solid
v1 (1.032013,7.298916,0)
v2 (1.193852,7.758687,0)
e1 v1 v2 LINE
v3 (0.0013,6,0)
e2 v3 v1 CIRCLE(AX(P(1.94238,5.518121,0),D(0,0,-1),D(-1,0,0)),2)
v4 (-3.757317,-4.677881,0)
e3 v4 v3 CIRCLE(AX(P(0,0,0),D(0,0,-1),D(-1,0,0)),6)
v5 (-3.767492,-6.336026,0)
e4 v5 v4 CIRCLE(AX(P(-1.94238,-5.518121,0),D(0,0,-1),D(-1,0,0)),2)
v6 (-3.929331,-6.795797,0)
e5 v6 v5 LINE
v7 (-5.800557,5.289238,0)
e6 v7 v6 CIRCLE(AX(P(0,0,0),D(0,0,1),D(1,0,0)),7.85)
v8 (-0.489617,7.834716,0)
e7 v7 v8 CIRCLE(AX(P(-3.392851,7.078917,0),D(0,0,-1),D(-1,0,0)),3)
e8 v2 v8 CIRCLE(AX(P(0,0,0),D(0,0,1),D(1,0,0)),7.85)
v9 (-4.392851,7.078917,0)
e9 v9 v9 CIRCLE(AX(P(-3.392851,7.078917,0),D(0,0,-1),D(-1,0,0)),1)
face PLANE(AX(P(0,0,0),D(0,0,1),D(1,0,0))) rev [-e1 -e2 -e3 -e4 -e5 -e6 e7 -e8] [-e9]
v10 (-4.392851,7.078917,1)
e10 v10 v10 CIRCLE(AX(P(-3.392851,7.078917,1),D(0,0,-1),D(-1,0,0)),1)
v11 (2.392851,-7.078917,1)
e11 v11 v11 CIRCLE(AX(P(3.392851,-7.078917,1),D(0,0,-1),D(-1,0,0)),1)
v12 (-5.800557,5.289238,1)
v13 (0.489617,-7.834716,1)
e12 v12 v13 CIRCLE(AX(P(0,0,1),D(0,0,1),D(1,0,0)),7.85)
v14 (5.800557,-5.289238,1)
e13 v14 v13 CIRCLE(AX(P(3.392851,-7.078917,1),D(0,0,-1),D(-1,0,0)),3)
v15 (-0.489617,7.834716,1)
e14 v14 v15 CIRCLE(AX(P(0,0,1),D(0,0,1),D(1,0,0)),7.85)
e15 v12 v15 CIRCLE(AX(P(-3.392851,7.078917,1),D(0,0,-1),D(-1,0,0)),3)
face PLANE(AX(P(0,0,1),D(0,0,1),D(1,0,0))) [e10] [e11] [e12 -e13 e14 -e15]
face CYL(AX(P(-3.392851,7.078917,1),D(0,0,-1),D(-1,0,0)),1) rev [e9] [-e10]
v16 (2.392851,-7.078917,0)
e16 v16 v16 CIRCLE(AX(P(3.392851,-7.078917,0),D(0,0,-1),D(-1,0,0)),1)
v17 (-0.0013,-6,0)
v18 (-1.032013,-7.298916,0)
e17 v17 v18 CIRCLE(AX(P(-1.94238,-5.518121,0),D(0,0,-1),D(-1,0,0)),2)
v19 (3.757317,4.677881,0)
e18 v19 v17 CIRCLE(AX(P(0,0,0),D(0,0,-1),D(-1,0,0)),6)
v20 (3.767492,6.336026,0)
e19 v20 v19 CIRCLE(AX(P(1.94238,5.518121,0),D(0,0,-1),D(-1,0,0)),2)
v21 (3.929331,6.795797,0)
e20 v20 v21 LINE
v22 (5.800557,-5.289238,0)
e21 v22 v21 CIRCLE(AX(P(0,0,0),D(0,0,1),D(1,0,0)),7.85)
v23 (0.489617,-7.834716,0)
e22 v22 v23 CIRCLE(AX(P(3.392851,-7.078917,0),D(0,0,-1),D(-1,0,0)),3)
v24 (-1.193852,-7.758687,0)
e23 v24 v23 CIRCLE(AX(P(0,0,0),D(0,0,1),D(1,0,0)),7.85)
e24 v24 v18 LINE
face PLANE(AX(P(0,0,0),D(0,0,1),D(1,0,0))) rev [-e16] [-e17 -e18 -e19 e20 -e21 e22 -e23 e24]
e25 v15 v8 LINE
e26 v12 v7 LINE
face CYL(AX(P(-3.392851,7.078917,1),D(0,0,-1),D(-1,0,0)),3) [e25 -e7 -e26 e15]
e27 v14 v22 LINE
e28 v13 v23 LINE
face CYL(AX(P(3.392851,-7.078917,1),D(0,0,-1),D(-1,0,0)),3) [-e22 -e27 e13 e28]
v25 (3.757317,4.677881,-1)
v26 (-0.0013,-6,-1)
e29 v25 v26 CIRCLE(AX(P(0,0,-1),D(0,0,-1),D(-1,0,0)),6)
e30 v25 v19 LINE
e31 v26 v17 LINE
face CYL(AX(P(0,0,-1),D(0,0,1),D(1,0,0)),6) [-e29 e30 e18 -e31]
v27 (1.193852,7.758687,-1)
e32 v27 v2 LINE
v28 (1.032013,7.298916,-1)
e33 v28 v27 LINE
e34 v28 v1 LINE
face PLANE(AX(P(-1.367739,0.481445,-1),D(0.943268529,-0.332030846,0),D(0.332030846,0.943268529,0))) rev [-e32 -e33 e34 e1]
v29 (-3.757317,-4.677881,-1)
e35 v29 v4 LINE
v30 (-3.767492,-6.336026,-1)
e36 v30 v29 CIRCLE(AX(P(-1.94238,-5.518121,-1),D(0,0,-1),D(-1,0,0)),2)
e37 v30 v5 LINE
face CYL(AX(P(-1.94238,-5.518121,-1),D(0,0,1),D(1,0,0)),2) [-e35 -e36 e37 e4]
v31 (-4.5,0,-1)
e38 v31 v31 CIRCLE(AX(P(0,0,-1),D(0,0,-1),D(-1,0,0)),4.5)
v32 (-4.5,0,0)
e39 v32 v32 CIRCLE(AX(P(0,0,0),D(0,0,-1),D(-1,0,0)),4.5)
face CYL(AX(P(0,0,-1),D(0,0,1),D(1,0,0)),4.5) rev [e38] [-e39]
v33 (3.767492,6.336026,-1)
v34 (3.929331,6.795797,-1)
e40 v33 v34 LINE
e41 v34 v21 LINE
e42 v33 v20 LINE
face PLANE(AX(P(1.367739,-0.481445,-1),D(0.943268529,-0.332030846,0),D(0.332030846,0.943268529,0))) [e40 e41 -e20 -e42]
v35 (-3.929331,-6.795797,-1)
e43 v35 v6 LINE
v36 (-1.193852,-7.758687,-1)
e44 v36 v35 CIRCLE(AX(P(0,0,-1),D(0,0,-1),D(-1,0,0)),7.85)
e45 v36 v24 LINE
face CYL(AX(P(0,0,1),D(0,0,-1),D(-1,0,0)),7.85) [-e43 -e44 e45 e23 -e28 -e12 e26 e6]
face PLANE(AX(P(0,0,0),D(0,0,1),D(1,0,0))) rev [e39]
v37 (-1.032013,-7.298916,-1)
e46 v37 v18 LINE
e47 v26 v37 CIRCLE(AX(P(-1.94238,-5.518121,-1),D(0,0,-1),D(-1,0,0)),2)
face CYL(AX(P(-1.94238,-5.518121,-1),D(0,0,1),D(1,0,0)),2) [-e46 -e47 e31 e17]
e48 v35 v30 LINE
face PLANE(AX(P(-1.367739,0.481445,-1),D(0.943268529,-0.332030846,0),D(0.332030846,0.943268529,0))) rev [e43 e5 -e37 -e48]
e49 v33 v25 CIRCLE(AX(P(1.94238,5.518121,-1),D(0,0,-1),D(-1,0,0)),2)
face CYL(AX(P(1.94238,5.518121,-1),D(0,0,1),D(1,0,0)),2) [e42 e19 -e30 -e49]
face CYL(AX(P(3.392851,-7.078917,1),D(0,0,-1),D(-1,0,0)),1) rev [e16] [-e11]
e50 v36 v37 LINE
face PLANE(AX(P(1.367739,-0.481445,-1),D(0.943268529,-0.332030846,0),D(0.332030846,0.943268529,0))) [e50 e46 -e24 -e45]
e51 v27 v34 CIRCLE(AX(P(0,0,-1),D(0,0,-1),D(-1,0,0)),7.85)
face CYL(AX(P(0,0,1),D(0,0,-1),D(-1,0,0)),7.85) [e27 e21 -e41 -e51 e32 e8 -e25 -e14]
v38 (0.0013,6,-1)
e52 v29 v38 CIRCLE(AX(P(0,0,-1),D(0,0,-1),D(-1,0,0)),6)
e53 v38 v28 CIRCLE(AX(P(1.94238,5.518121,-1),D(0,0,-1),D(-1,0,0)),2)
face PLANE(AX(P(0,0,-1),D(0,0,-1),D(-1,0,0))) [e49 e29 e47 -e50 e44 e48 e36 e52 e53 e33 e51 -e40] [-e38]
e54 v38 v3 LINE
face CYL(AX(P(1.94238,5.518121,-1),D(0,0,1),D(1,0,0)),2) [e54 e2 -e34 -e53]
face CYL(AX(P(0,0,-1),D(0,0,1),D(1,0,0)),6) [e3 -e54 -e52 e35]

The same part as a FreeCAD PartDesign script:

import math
import FreeCAD as App
import Part
import Sketcher

V = App.Vector

doc = App.newDocument("Part")
params = doc.addObject("Spreadsheet::Sheet", "Params")
for row, (alias, value) in enumerate([
    ("sketch1_diameter", "15.7 mm"),
    ("pad1_length", "1 mm"),
    ("sketch2_diameter", "9 mm"),
    ("sketch2_radius", "2 mm"),
    ("sketch2_radius2", "6 mm"),
    ("sketch2_radius3", "7.85 mm"),
    ("pad2_length", "1 mm"),
    ("sketch3_radius", "3 mm"),
    ("sketch3_radius2", "1 mm"),
    ("sketch3_radius3", "7.85 mm"),
    ("pad3_length", "1 mm"),
    ("sketch4_diameter", "2 mm"),
    ("pocket1_length", "2 mm"),
    ("sketch5_diameter", "2 mm"),
    ("pocket2_length", "3 mm"),
], start=1):
    params.set(f"A{row}", alias)
    params.set(f"B{row}", "=" + value)
    params.setAlias(f"B{row}", alias)

body = doc.addObject("PartDesign::Body", "Body")

sketch1 = body.newObject("Sketcher::SketchObject", "Sketch")
sketch1.AttachmentSupport = (doc.getObject("XY_Plane"), [""])
sketch1.MapMode = "FlatFace"
sketch1.addGeometry(Part.Circle(V(0, 0, 0), V(0, 0, 1), 8), False)
sketch1.addConstraint(Sketcher.Constraint("Coincident", 0, 3, -1, 1))
sketch1.addConstraint(Sketcher.Constraint("Diameter", 0, 15.7))
sketch1.setExpression("Constraints[1]", "Params.sketch1_diameter")
pad1 = body.newObject("PartDesign::Pad", "Pad")
pad1.Profile = sketch1
pad1.setExpression("Length", "Params.pad1_length")

sketch2 = body.newObject("Sketcher::SketchObject", "Sketch001")
sketch2.AttachmentSupport = (doc.getObject("XY_Plane"), [""])
sketch2.MapMode = "FlatFace"
sketch2.AttachmentOffset = App.Placement(V(0, 0, -1), App.Rotation())
sketch2.addGeometry(Part.ArcOfCircle(Part.Circle(V(1.94, 5.52, 0), V(0, 0, 1), 2), math.radians(117), math.radians(166)), False)
sketch2.addGeometry(Part.LineSegment(V(1.03, 7.3, 0), V(1.19, 7.76, 0)), False)
sketch2.addGeometry(Part.ArcOfCircle(Part.Circle(V(0, 0, 0), V(0, 0, 1), 7.85), math.radians(60), math.radians(81)), False)
sketch2.addGeometry(Part.LineSegment(V(3.93, 6.8, 0), V(3.77, 6.34, 0)), False)
sketch2.addGeometry(Part.ArcOfCircle(Part.Circle(V(1.94, 5.52, 0), V(0, 0, 1), 2), math.radians(-25), math.radians(24)), False)
sketch2.addGeometry(Part.ArcOfCircle(Part.Circle(V(0, 0, 0), V(0, 0, 1), 6), math.radians(-90), math.radians(51)), False)
sketch2.addGeometry(Part.ArcOfCircle(Part.Circle(V(-1.94, -5.52, 0), V(0, 0, 1), 2), math.radians(-63), math.radians(-14)), False)
sketch2.addGeometry(Part.LineSegment(V(-1.03, -7.3, 0), V(-1.19, -7.76, 0)), False)
sketch2.addGeometry(Part.ArcOfCircle(Part.Circle(V(0, 0, 0), V(0, 0, 1), 7.85), math.radians(-120), math.radians(-99)), False)
sketch2.addGeometry(Part.LineSegment(V(-3.93, -6.8, 0), V(-3.77, -6.34, 0)), False)
sketch2.addGeometry(Part.ArcOfCircle(Part.Circle(V(-1.94, -5.52, 0), V(0, 0, 1), 2), math.radians(155), math.radians(204)), False)
sketch2.addGeometry(Part.ArcOfCircle(Part.Circle(V(0, 0, 0), V(0, 0, 1), 6), math.radians(90), math.radians(231)), False)
sketch2.addGeometry(Part.Circle(V(0, 0, 0), V(0, 0, 1), 4.5), False)
sketch2.addConstraint(Sketcher.Constraint("Coincident", 0, 1, 1, 1))
sketch2.addConstraint(Sketcher.Constraint("Coincident", 1, 2, 2, 2))
sketch2.addConstraint(Sketcher.Constraint("Coincident", 2, 1, 3, 1))
sketch2.addConstraint(Sketcher.Constraint("Coincident", 3, 2, 4, 2))
sketch2.addConstraint(Sketcher.Constraint("Coincident", 4, 1, 5, 2))
sketch2.addConstraint(Sketcher.Constraint("Coincident", 5, 1, 6, 2))
sketch2.addConstraint(Sketcher.Constraint("Coincident", 6, 1, 7, 1))
sketch2.addConstraint(Sketcher.Constraint("Coincident", 7, 2, 8, 2))
sketch2.addConstraint(Sketcher.Constraint("Coincident", 8, 1, 9, 1))
sketch2.addConstraint(Sketcher.Constraint("Coincident", 9, 2, 10, 2))
sketch2.addConstraint(Sketcher.Constraint("Coincident", 10, 1, 11, 2))
sketch2.addConstraint(Sketcher.Constraint("Coincident", 11, 1, 0, 2))
sketch2.addConstraint(Sketcher.Constraint("Coincident", 2, 3, -1, 1))
sketch2.addConstraint(Sketcher.Constraint("Coincident", 5, 3, -1, 1))
sketch2.addConstraint(Sketcher.Constraint("Coincident", 8, 3, -1, 1))
sketch2.addConstraint(Sketcher.Constraint("Coincident", 11, 3, -1, 1))
sketch2.addConstraint(Sketcher.Constraint("Coincident", 12, 3, -1, 1))
sketch2.addConstraint(Sketcher.Constraint("Coincident", 4, 3, 0, 3))
sketch2.addConstraint(Sketcher.Constraint("Coincident", 10, 3, 6, 3))
sketch2.addConstraint(Sketcher.Constraint("Equal", 0, 4))
sketch2.addConstraint(Sketcher.Constraint("Equal", 4, 6))
sketch2.addConstraint(Sketcher.Constraint("Equal", 2, 8))
sketch2.addConstraint(Sketcher.Constraint("Equal", 6, 10))
sketch2.addConstraint(Sketcher.Constraint("Equal", 5, 11))
sketch2.addConstraint(Sketcher.Constraint("Symmetric", 0, 3, 6, 3, -1, 1))
sketch2.addConstraint(Sketcher.Constraint("Parallel", 1, 3))
sketch2.addConstraint(Sketcher.Constraint("Parallel", 3, 7))
sketch2.addConstraint(Sketcher.Constraint("Parallel", 7, 9))
sketch2.addConstraint(Sketcher.Constraint("Equal", 1, 3))
sketch2.addConstraint(Sketcher.Constraint("Equal", 3, 7))
sketch2.addConstraint(Sketcher.Constraint("Equal", 7, 9))
sketch2.addConstraint(Sketcher.Constraint("Diameter", 12, 9.0))
sketch2.addConstraint(Sketcher.Constraint("Radius", 0, 2.0))
sketch2.addConstraint(Sketcher.Constraint("Radius", 5, 6.0))
sketch2.addConstraint(Sketcher.Constraint("Radius", 2, 7.85))
sketch2.addConstraint(Sketcher.Constraint("DistanceX", 5, 1, -1, 1, 0.0013))
sketch2.addConstraint(Sketcher.Constraint("DistanceX", -1, 1, 0, 3, 1.94238))
sketch2.addConstraint(Sketcher.Constraint("DistanceX", -1, 1, 2, 1, 3.929331))
sketch2.addConstraint(Sketcher.Constraint("DistanceX", -1, 1, 3, 2, 3.767492))
sketch2.setExpression("Constraints[31]", "Params.sketch2_diameter")
sketch2.setExpression("Constraints[32]", "Params.sketch2_radius")
sketch2.setExpression("Constraints[33]", "Params.sketch2_radius2")
sketch2.setExpression("Constraints[34]", "Params.sketch2_radius3")
pad2 = body.newObject("PartDesign::Pad", "Pad001")
pad2.Profile = sketch2
pad2.setExpression("Length", "Params.pad2_length")

sketch3 = body.newObject("Sketcher::SketchObject", "Sketch002")
sketch3.AttachmentSupport = (doc.getObject("XY_Plane"), [""])
sketch3.MapMode = "FlatFace"
sketch3.addGeometry(Part.ArcOfCircle(Part.Circle(V(0, 0, 0), V(0, 0, 1), 7.8), math.radians(-57.09), math.radians(-42.36)), False)
sketch3.addGeometry(Part.ArcOfCircle(Part.Circle(V(3.4, -7.1, 0), V(0, 0, 1), 3), math.radians(-165), math.radians(37)), False)
sketch3.addGeometry(Part.ArcOfCircle(Part.Circle(V(0, 0, 0), V(0, 0, 1), 7.8), math.radians(-86.42), math.radians(-71.7)), False)
sketch3.addGeometry(Part.ArcOfCircle(Part.Circle(V(3.4, -7.1, 0), V(0, 0, 1), 1), math.radians(-158), math.radians(29)), False)
sketch3.addGeometry(Part.ArcOfCircle(Part.Circle(V(-3.4, 7.1, 0), V(0, 0, 1), 1), math.radians(22), math.radians(180)), False)
sketch3.addGeometry(Part.ArcOfCircle(Part.Circle(V(-3.4, 7.1, 0), V(0, 0, 1), 1), math.radians(-180), math.radians(-151)), False)
sketch3.addGeometry(Part.ArcOfCircle(Part.Circle(V(0, 0, 0), V(0, 0, 1), 7.8), math.radians(122.91), math.radians(137.64)), False)
sketch3.addGeometry(Part.ArcOfCircle(Part.Circle(V(-3.4, 7.1, 0), V(0, 0, 1), 3), math.radians(15), math.radians(217)), False)
sketch3.addGeometry(Part.ArcOfCircle(Part.Circle(V(0, 0, 0), V(0, 0, 1), 7.8), math.radians(93.58), math.radians(108.3)), False)
sketch3.addConstraint(Sketcher.Constraint("Coincident", 0, 2, 1, 2))
sketch3.addConstraint(Sketcher.Constraint("Coincident", 1, 1, 2, 1))
sketch3.addConstraint(Sketcher.Constraint("Coincident", 2, 2, 3, 1))
sketch3.addConstraint(Sketcher.Constraint("Coincident", 3, 2, 0, 1))
sketch3.addConstraint(Sketcher.Constraint("Tangent", 4, 2, 5, 1))
sketch3.addConstraint(Sketcher.Constraint("Coincident", 5, 2, 6, 1))
sketch3.addConstraint(Sketcher.Constraint("Coincident", 6, 2, 7, 2))
sketch3.addConstraint(Sketcher.Constraint("Coincident", 7, 1, 8, 1))
sketch3.addConstraint(Sketcher.Constraint("Coincident", 8, 2, 4, 1))
sketch3.addConstraint(Sketcher.Constraint("Coincident", 0, 3, -1, 1))
sketch3.addConstraint(Sketcher.Constraint("Coincident", 2, 3, -1, 1))
sketch3.addConstraint(Sketcher.Constraint("Coincident", 6, 3, -1, 1))
sketch3.addConstraint(Sketcher.Constraint("Coincident", 8, 3, -1, 1))
sketch3.addConstraint(Sketcher.Constraint("Coincident", 3, 3, 1, 3))
sketch3.addConstraint(Sketcher.Constraint("Coincident", 7, 3, 4, 3))
sketch3.addConstraint(Sketcher.Constraint("Equal", 0, 2))
sketch3.addConstraint(Sketcher.Constraint("Equal", 3, 4))
sketch3.addConstraint(Sketcher.Constraint("Equal", 4, 5))
sketch3.addConstraint(Sketcher.Constraint("Equal", 2, 6))
sketch3.addConstraint(Sketcher.Constraint("Equal", 1, 7))
sketch3.addConstraint(Sketcher.Constraint("Equal", 6, 8))
sketch3.addConstraint(Sketcher.Constraint("Symmetric", 1, 3, 4, 3, -1, 1))
sketch3.addConstraint(Sketcher.Constraint("Horizontal", 7, 3, 4, 2))
sketch3.addConstraint(Sketcher.Constraint("Radius", 1, 3.0))
sketch3.addConstraint(Sketcher.Constraint("Radius", 3, 1.0))
sketch3.addConstraint(Sketcher.Constraint("Radius", 0, 7.85))
sketch3.addConstraint(Sketcher.Constraint("DistanceX", 4, 3, 1, 3, 6.785702))
sketch3.addConstraint(Sketcher.Constraint("DistanceY", 1, 1, 1, 3, 0.755799))
sketch3.setExpression("Constraints[23]", "Params.sketch3_radius")
sketch3.setExpression("Constraints[24]", "Params.sketch3_radius2")
sketch3.setExpression("Constraints[25]", "Params.sketch3_radius3")
pad3 = body.newObject("PartDesign::Pad", "Pad002")
pad3.Profile = sketch3
pad3.setExpression("Length", "Params.pad3_length")

sketch4 = body.newObject("Sketcher::SketchObject", "Sketch003")
sketch4.AttachmentSupport = (doc.getObject("XY_Plane"), [""])
sketch4.MapMode = "FlatFace"
sketch4.addGeometry(Part.Circle(V(-3.4, 7.1, 0), V(0, 0, 1), 1), False)
sketch4.addConstraint(Sketcher.Constraint("Diameter", 0, 2.0))
sketch4.addConstraint(Sketcher.Constraint("DistanceX", 0, 3, -1, 1, 3.392851))
sketch4.addConstraint(Sketcher.Constraint("DistanceY", -1, 1, 0, 3, 7.078917))
sketch4.setExpression("Constraints[0]", "Params.sketch4_diameter")
pocket1 = body.newObject("PartDesign::Pocket", "Pocket")
pocket1.Profile = sketch4
pocket1.setExpression("Length", "Params.pocket1_length")
pocket1.Reversed = True

sketch5 = body.newObject("Sketcher::SketchObject", "Sketch004")
sketch5.AttachmentSupport = (doc.getObject("XY_Plane"), [""])
sketch5.MapMode = "FlatFace"
sketch5.addGeometry(Part.Circle(V(3.4, -7.1, 0), V(0, 0, 1), 1), False)
sketch5.addConstraint(Sketcher.Constraint("Diameter", 0, 2.0))
sketch5.addConstraint(Sketcher.Constraint("DistanceX", -1, 1, 0, 3, 3.392851))
sketch5.addConstraint(Sketcher.Constraint("DistanceY", 0, 3, -1, 1, 7.078917))
sketch5.setExpression("Constraints[0]", "Params.sketch5_diameter")
pocket2 = body.newObject("PartDesign::Pocket", "Pocket001")
pocket2.Profile = sketch5
pocket2.setExpression("Length", "Params.pocket2_length")
pocket2.Reversed = True

doc.recompute()
